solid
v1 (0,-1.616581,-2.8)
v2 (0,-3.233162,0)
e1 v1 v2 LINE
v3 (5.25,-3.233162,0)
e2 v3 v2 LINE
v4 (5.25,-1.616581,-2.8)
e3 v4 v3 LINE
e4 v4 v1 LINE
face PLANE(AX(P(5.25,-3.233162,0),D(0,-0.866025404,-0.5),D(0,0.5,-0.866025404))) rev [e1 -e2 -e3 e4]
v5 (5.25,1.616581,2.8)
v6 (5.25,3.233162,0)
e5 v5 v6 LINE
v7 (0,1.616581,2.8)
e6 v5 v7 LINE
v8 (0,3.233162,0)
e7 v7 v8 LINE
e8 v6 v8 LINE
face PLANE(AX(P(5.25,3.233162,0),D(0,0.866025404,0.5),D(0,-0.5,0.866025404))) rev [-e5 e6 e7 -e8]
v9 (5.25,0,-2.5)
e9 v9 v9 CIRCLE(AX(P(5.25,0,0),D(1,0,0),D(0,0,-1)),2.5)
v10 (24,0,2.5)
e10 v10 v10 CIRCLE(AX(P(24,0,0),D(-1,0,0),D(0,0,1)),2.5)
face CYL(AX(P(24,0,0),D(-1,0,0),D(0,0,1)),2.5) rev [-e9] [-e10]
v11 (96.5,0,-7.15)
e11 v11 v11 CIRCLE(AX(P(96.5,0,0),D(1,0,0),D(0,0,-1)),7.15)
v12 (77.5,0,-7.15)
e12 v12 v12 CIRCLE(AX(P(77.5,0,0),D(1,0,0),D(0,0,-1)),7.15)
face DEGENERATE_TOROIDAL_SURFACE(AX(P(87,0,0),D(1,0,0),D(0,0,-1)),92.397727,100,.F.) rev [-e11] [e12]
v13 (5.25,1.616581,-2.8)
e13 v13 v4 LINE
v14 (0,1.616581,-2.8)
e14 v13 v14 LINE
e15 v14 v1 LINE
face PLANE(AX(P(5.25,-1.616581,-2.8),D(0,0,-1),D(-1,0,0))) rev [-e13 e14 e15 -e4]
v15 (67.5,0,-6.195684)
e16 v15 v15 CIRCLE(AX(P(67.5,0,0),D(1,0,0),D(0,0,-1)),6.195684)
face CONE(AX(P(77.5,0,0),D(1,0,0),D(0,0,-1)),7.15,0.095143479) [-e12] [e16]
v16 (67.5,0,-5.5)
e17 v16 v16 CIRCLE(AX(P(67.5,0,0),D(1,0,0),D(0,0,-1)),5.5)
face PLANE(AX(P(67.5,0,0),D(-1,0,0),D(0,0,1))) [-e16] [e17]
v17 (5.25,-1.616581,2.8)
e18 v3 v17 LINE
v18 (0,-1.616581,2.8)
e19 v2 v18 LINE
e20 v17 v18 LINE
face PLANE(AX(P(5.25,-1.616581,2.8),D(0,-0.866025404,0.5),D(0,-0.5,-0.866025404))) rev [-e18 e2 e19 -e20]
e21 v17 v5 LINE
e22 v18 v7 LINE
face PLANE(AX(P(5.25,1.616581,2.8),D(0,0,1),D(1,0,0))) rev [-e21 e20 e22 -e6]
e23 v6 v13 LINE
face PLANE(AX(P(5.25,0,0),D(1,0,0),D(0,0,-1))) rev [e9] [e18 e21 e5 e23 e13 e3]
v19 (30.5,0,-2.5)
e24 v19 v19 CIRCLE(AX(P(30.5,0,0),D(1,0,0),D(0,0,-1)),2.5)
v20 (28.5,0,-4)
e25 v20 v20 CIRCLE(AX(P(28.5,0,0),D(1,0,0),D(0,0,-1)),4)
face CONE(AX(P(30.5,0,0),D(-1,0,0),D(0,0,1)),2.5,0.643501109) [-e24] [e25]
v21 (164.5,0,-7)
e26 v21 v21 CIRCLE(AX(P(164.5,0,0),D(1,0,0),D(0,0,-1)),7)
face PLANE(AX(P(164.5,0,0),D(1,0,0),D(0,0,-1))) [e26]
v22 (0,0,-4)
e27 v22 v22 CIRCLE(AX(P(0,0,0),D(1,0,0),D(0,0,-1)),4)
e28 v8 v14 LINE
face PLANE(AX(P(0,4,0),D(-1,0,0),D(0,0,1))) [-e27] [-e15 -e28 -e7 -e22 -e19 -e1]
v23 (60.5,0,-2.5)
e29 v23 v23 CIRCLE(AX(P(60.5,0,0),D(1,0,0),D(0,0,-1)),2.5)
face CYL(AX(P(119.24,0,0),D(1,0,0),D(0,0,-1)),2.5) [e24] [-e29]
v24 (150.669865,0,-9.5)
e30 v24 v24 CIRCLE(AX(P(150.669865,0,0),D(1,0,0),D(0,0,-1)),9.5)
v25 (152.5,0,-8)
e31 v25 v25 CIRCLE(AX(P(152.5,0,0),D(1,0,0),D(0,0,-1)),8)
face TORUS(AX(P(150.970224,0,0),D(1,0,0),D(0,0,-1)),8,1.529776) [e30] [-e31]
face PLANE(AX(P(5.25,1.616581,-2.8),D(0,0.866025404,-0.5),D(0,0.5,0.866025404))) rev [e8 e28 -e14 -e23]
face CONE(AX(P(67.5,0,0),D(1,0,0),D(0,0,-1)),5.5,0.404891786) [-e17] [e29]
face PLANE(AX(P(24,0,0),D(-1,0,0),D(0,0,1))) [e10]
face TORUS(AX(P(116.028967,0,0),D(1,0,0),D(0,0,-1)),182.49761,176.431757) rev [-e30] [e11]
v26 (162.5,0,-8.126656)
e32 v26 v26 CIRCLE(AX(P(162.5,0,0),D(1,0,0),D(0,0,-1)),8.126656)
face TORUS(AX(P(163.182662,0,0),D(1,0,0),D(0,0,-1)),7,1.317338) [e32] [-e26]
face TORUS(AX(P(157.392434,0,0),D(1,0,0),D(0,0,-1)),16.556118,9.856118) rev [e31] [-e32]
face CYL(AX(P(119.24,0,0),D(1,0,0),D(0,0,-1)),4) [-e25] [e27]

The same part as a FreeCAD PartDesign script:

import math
import FreeCAD as App
import Part
import Sketcher

V = App.Vector
Q = App.Units.Quantity


def add_polygon(sketch, points):
    """Adds a closed chain of lines whose ends are joined by coincident constraints."""
    first, n = sketch.GeometryCount, len(points)
    for a, b in zip(points, points[1:] + points[:1]):
        sketch.addGeometry(Part.LineSegment(App.Vector(*a, 0), App.Vector(*b, 0)), False)
    for i in range(n):
        sketch.addConstraint(Sketcher.Constraint("Coincident", first + i, 2, first + (i + 1) % n, 1))

doc = App.newDocument("Part")
body = doc.addObject("PartDesign::Body", "Body")

# Sketch on XY plane
sketch1 = doc.addObject("Sketcher::SketchObject", "Sketch")
body.addObject(sketch1)
sketch1.AttachmentSupport = (doc.XY_Plane, [""])
sketch1.MapMode = "FlatFace"
add_polygon(sketch1, [(28.5, 4), (0, 4), (0, 0), (60.5, 0), (60.5, 2.5), (30.5, 2.5)])  # lines 0-5
sketch1.addConstraint(Sketcher.Constraint("Horizontal", 0))
sketch1.addConstraint(Sketcher.Constraint("Vertical", 1))
sketch1.addConstraint(Sketcher.Constraint("Horizontal", 2))
sketch1.addConstraint(Sketcher.Constraint("Vertical", 3))
sketch1.addConstraint(Sketcher.Constraint("Horizontal", 4))
sketch1.addConstraint(Sketcher.Constraint("Coincident", 1, 2, -1, 1))
sketch1.addConstraint(Sketcher.Constraint("DistanceX", 4, 2, 4, 1, Q("30 mm")))
sketch1.addConstraint(Sketcher.Constraint("DistanceY", 1, 2, 1, 1, Q("4 mm")))
sketch1.addConstraint(Sketcher.Constraint("DistanceX", 0, 2, 0, 1, Q("28.5 mm")))
sketch1.addConstraint(Sketcher.Constraint("DistanceX", 2, 1, 2, 2, Q("60.5 mm")))
sketch1.addConstraint(Sketcher.Constraint("DistanceY", 3, 1, 3, 2, Q("2.5 mm")))
revolution = doc.addObject("PartDesign::Revolution", "Revolution")
body.addObject(revolution)
revolution.Profile = sketch1
revolution.ReferenceAxis = (sketch1, ["H_Axis"])
revolution.Angle = 360

# Sketch on YZ plane
sketch2 = doc.addObject("Sketcher::SketchObject", "Sketch001")
body.addObject(sketch2)
sketch2.AttachmentSupport = (doc.YZ_Plane, [""])
sketch2.MapMode = "FlatFace"
add_polygon(sketch2, [(3.2, 0), (1.6, -2.8), (-1.6, -2.8), (-3.2, 0), (-1.6, 2.8), (1.6, 2.8)])  # lines 0-5
sketch2.addConstraint(Sketcher.Constraint("Horizontal", 1))
sketch2.addConstraint(Sketcher.Constraint("Horizontal", 4))
sketch2.addConstraint(Sketcher.Constraint("Symmetric", 0, 2, 3, 2, -1, 1))
sketch2.addConstraint(Sketcher.Constraint("Symmetric", 2, 2, 5, 2, -1, 1))
sketch2.addConstraint(Sketcher.Constraint("PointOnObject", 2, 2, -1))
sketch2.addConstraint(Sketcher.Constraint("Parallel", 2, 5))
sketch2.addConstraint(Sketcher.Constraint("Vertical", 1, 2, 3, 2))
sketch2.addConstraint(Sketcher.Constraint("Angle", 0, Q("-120 deg")))
sketch2.addConstraint(Sketcher.Constraint("DistanceY", 0, 2, -1, 1, Q("2.8 mm")))
sketch2.addConstraint(Sketcher.Constraint("DistanceX", 1, 2, 1, 1, Q("3.233162 mm")))
pocket1 = doc.addObject("PartDesign::Pocket", "Pocket")
body.addObject(pocket1)
pocket1.Profile = sketch2
pocket1.Length = 5.25
pocket1.Reversed = True

# Sketch on YZ plane
sketch3 = doc.addObject("Sketcher::SketchObject", "Sketch002")
body.addObject(sketch3)
sketch3.AttachmentSupport = (doc.YZ_Plane, [""])
sketch3.MapMode = "FlatFace"
sketch3.addGeometry(Part.Circle(V(0, 0, 0), V(0, 0, 1), 2.5), False)
sketch3.addConstraint(Sketcher.Constraint("Coincident", 0, 3, -1, 1))
sketch3.addConstraint(Sketcher.Constraint("Diameter", 0, Q("5 mm")))
pocket2 = doc.addObject("PartDesign::Pocket", "Pocket001")
body.addObject(pocket2)
pocket2.Profile = sketch3
pocket2.Length = 24
pocket2.Reversed = True

# Sketch on XY plane
sketch4 = doc.addObject("Sketcher::SketchObject", "Sketch003")
body.addObject(sketch4)
sketch4.AttachmentSupport = (doc.XY_Plane, [""])
sketch4.MapMode = "FlatFace"
add_polygon(sketch4, [(60.5, 2.5), (60.5, 0), (67.5, 0), (67.5, 5.5)])  # lines 0-3
sketch4.addConstraint(Sketcher.Constraint("Vertical", 0))
sketch4.addConstraint(Sketcher.Constraint("Horizontal", 1))
sketch4.addConstraint(Sketcher.Constraint("Vertical", 2))
sketch4.addConstraint(Sketcher.Constraint("PointOnObject", 0, 2, -1))
sketch4.addConstraint(Sketcher.Constraint("DistanceX", 1, 1, 1, 2, Q("7 mm")))
sketch4.addConstraint(Sketcher.Constraint("DistanceY", 0, 2, 0, 1, Q("2.5 mm")))
sketch4.addConstraint(Sketcher.Constraint("DistanceY", 2, 1, 2, 2, Q("5.5 mm")))
sketch4.addConstraint(Sketcher.Constraint("DistanceX", -1, 1, 0, 2, Q("60.5 mm")))
revolution2 = doc.addObject("PartDesign::Revolution", "Revolution001")
body.addObject(revolution2)
revolution2.Profile = sketch4
revolution2.ReferenceAxis = (sketch4, ["H_Axis"])
revolution2.Angle = 360

# Sketch on XY plane
sketch5 = doc.addObject("Sketcher::SketchObject", "Sketch004")
body.addObject(sketch5)
sketch5.AttachmentSupport = (doc.XY_Plane, [""])
sketch5.MapMode = "FlatFace"
sketch5.addGeometry(Part.LineSegment(V(78, 7, 0), V(68, 6, 0)), False)
sketch5.addGeometry(Part.LineSegment(V(68, 6, 0), V(68, 0, 0)), False)
sketch5.addGeometry(Part.LineSegment(V(68, 0, 0), V(96, 0, 0)), False)
sketch5.addGeometry(Part.LineSegment(V(96, 0, 0), V(96, 7, 0)), False)
sketch5.addGeometry(Part.ArcOfCircle(Part.Circle(V(87, -92, 0), V(0, 0, 1), 100), math.radians(84.55), math.radians(95.45)), False)
sketch5.addConstraint(Sketcher.Constraint("Coincident", 0, 2, 1, 1))
sketch5.addConstraint(Sketcher.Constraint("Coincident", 1, 2, 2, 1))
sketch5.addConstraint(Sketcher.Constraint("Coincident", 2, 2, 3, 1))
sketch5.addConstraint(Sketcher.Constraint("Coincident", 3, 2, 4, 1))
sketch5.addConstraint(Sketcher.Constraint("Tangent", 4, 2, 0, 1))
sketch5.addConstraint(Sketcher.Constraint("Vertical", 1))
sketch5.addConstraint(Sketcher.Constraint("Horizontal", 2))
sketch5.addConstraint(Sketcher.Constraint("Vertical", 3))
sketch5.addConstraint(Sketcher.Constraint("PointOnObject", 1, 2, -1))
sketch5.addConstraint(Sketcher.Constraint("Horizontal", 3, 2, 4, 2))
sketch5.addConstraint(Sketcher.Constraint("Radius", 4, Q("100 mm")))
sketch5.addConstraint(Sketcher.Constraint("DistanceX", 2, 1, 2, 2, Q("29 mm")))
sketch5.addConstraint(Sketcher.Constraint("DistanceX", -1, 1, 4, 3, Q("87 mm")))
sketch5.addConstraint(Sketcher.Constraint("DistanceX", 0, 2, 4, 2, Q("10 mm")))
sketch5.addConstraint(Sketcher.Constraint("DistanceY", 3, 1, 3, 2, Q("7.15 mm")))
revolution3 = doc.addObject("PartDesign::Revolution", "Revolution002")
body.addObject(revolution3)
revolution3.Profile = sketch5
revolution3.ReferenceAxis = (sketch5, ["H_Axis"])
revolution3.Angle = 360

# Sketch on XY plane
sketch6 = doc.addObject("Sketcher::SketchObject", "Sketch005")
body.addObject(sketch6)
sketch6.AttachmentSupport = (doc.XY_Plane, [""])
sketch6.MapMode = "FlatFace"
sketch6.addGeometry(Part.LineSegment(V(152.5, 0, 0), V(152.5, 8, 0)), False)
sketch6.addGeometry(Part.ArcOfCircle(Part.Circle(V(151, 8, 0), V(0, 0, 1), 1.5), math.radians(0), math.radians(101)), False)
sketch6.addGeometry(Part.ArcOfCircle(Part.Circle(V(116, 182.5, 0), V(0, 0, 1), 176.4), math.radians(-96.36), math.radians(-78.68)), False)
sketch6.addGeometry(Part.LineSegment(V(96.5, 7.2, 0), V(96.5, 0, 0)), False)
sketch6.addGeometry(Part.LineSegment(V(96.5, 0, 0), V(152.5, 0, 0)), False)
sketch6.addConstraint(Sketcher.Constraint("Tangent", 0, 2, 1, 1))
sketch6.addConstraint(Sketcher.Constraint("Tangent", 1, 2, 2, 2))
sketch6.addConstraint(Sketcher.Constraint("Coincident", 2, 1, 3, 1))
sketch6.addConstraint(Sketcher.Constraint("Coincident", 3, 2, 4, 1))
sketch6.addConstraint(Sketcher.Constraint("Coincident", 4, 2, 0, 1))
sketch6.addConstraint(Sketcher.Constraint("Vertical", 0))
sketch6.addConstraint(Sketcher.Constraint("Vertical", 3))
sketch6.addConstraint(Sketcher.Constraint("Horizontal", 4))
sketch6.addConstraint(Sketcher.Constraint("PointOnObject", 3, 2, -1))
sketch6.addConstraint(Sketcher.Constraint("DistanceX", 4, 1, 4, 2, Q("56 mm")))
sketch6.addConstraint(Sketcher.Constraint("DistanceY", 0, 1, 0, 2, Q("8 mm")))
sketch6.addConstraint(Sketcher.Constraint("DistanceY", 3, 2, 3, 1, Q("7.15 mm")))
sketch6.addConstraint(Sketcher.Constraint("DistanceX", -1, 1, 0, 2, Q("152.5 mm")))
sketch6.addConstraint(Sketcher.Constraint("DistanceY", -1, 1, 1, 2, Q("9.5 mm")))
sketch6.addConstraint(Sketcher.Constraint("Radius", 2, Q("176.431757 mm")))
revolution4 = doc.addObject("PartDesign::Revolution", "Revolution003")
body.addObject(revolution4)
revolution4.Profile = sketch6
revolution4.ReferenceAxis = (sketch6, ["H_Axis"])
revolution4.Angle = 360

# Sketch on XY plane
sketch7 = doc.addObject("Sketcher::SketchObject", "Sketch006")
body.addObject(sketch7)
sketch7.AttachmentSupport = (doc.XY_Plane, [""])
sketch7.MapMode = "FlatFace"
sketch7.addGeometry(Part.LineSegment(V(152.5, 8, 0), V(152.5, 0, 0)), False)
sketch7.addGeometry(Part.LineSegment(V(152.5, 0, 0), V(164.5, 0, 0)), False)
sketch7.addGeometry(Part.LineSegment(V(164.5, 0, 0), V(164.5, 7, 0)), False)
sketch7.addGeometry(Part.ArcOfCircle(Part.Circle(V(163.2, 7, 0), V(0, 0, 1), 1.3), math.radians(0), math.radians(121)), False)
sketch7.addGeometry(Part.ArcOfCircle(Part.Circle(V(157.4, 16.6, 0), V(0, 0, 1), 9.9), math.radians(-120), math.radians(-59)), False)
sketch7.addConstraint(Sketcher.Constraint("Coincident", 0, 2, 1, 1))
sketch7.addConstraint(Sketcher.Constraint("Coincident", 1, 2, 2, 1))
sketch7.addConstraint(Sketcher.Constraint("Tangent", 2, 2, 3, 1))
sketch7.addConstraint(Sketcher.Constraint("Tangent", 3, 2, 4, 2))
sketch7.addConstraint(Sketcher.Constraint("Coincident", 4, 1, 0, 1))
sketch7.addConstraint(Sketcher.Constraint("Vertical", 0))
sketch7.addConstraint(Sketcher.Constraint("Horizontal", 1))
sketch7.addConstraint(Sketcher.Constraint("Vertical", 2))
sketch7.addConstraint(Sketcher.Constraint("PointOnObject", 0, 2, -1))
sketch7.addConstraint(Sketcher.Constraint("DistanceX", 1, 1, 1, 2, Q("12 mm")))
sketch7.addConstraint(Sketcher.Constraint("DistanceY", 0, 2, 0, 1, Q("8 mm")))
sketch7.addConstraint(Sketcher.Constraint("DistanceY", 2, 1, 2, 2, Q("7 mm")))
sketch7.addConstraint(Sketcher.Constraint("DistanceX", 3, 2, 2, 2, Q("2 mm")))
sketch7.addConstraint(Sketcher.Constraint("DistanceX", -1, 1, 0, 2, Q("152.5 mm")))
sketch7.addConstraint(Sketcher.Constraint("Radius", 3, Q("1.317338 mm")))
revolution5 = doc.addObject("PartDesign::Revolution", "Revolution004")
body.addObject(revolution5)
revolution5.Profile = sketch7
revolution5.ReferenceAxis = (sketch7, ["H_Axis"])
revolution5.Angle = 360

doc.recompute()
